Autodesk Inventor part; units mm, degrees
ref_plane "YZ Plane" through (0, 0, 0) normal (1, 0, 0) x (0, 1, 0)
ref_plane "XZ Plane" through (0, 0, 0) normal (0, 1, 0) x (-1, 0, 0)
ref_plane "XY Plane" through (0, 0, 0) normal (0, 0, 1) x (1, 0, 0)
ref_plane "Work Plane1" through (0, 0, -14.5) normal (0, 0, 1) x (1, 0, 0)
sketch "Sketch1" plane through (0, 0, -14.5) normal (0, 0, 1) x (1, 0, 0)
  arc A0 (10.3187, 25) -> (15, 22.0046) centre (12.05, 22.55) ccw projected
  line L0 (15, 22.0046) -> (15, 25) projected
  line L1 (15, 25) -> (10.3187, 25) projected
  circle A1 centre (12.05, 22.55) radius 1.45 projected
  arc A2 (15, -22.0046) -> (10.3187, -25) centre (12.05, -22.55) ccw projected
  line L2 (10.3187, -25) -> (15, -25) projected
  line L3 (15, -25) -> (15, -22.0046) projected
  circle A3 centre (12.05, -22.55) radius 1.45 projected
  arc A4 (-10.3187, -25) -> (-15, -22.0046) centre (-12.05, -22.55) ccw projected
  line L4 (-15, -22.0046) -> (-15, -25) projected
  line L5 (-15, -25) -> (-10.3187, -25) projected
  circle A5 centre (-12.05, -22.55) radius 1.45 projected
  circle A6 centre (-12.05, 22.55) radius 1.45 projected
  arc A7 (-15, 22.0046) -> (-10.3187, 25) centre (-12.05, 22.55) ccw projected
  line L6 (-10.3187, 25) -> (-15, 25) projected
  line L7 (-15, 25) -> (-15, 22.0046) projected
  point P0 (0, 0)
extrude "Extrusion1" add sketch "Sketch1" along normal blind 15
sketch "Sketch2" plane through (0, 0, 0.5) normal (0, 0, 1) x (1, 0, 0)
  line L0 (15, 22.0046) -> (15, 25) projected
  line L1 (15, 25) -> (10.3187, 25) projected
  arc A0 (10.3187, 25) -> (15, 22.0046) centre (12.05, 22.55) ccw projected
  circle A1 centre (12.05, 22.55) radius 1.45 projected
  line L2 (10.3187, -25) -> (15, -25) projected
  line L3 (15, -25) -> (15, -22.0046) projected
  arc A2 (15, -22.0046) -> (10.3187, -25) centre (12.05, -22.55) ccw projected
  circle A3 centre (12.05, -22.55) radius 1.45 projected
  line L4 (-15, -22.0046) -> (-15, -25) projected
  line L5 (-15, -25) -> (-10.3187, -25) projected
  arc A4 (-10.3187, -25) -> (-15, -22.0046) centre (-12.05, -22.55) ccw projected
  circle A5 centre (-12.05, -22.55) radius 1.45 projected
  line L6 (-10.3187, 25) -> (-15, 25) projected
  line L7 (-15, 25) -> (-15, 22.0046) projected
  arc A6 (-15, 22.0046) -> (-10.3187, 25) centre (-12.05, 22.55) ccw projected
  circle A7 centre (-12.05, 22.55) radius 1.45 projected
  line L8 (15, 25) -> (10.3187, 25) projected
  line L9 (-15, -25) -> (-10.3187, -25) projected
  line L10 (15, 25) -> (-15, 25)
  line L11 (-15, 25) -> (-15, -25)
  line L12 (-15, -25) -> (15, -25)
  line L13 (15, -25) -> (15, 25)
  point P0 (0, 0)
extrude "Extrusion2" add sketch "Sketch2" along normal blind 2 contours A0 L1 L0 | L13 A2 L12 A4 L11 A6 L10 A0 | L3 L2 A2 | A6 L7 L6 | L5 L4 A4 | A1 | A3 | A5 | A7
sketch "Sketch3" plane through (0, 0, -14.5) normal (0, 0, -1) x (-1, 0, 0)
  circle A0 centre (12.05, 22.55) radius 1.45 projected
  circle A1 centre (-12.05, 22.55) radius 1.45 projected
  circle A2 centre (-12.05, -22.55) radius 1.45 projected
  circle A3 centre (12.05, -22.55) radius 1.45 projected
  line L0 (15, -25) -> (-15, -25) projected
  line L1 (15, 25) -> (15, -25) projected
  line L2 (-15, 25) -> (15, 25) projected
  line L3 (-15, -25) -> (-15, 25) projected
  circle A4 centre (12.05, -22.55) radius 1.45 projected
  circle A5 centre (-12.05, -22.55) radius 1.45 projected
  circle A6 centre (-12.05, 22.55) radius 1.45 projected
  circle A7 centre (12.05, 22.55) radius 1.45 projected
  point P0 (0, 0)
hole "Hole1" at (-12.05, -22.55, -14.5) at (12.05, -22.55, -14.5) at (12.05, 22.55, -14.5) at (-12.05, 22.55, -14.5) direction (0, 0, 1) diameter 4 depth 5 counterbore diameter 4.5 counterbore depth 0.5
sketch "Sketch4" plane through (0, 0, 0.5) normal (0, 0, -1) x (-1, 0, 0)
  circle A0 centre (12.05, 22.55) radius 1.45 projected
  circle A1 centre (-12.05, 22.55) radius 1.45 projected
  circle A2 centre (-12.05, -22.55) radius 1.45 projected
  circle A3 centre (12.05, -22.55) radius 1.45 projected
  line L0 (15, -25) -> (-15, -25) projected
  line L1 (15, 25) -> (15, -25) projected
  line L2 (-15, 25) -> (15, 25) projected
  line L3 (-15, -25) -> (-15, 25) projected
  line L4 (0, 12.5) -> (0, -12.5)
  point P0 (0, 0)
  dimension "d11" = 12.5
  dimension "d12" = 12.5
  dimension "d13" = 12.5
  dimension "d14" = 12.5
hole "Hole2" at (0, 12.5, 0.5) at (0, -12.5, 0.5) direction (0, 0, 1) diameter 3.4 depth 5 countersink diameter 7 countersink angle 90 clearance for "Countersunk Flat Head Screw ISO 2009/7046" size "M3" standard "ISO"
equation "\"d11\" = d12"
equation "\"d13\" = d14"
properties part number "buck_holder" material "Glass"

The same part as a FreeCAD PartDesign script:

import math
import FreeCAD as App
import Part
import Sketcher
Q = App.Units.Quantity

doc = App.newDocument("Part")
body = doc.addObject("PartDesign::Body", "Body")
body.AllowCompound = True

sketch1 = body.newObject("Sketcher::SketchObject", "Sketch")
sketch1.AttachmentSupport = (doc.getObject("XY_Plane"), [""])
sketch1.MapMode = "FlatFace"
sketch1.AttachmentOffset = App.Placement(App.Vector(0, 0, -14.5), App.Rotation())
sketch1.addGeometry(Part.LineSegment(App.Vector(15, 25, 0), App.Vector(10.3, 25, 0)), False)
sketch1.addGeometry(Part.ArcOfCircle(Part.Circle(App.Vector(12.1, 22.6, 0), App.Vector(0, 0, 1), 3), math.radians(125), math.radians(350)), False)
sketch1.addGeometry(Part.LineSegment(App.Vector(15, 22, 0), App.Vector(15, 25, 0)), False)
sketch1.addGeometry(Part.Circle(App.Vector(12.1, 22.6, 0), App.Vector(0, 0, 1), 1.4), False)
sketch1.addGeometry(Part.LineSegment(App.Vector(15, -25, 0), App.Vector(15, -22, 0)), False)
sketch1.addGeometry(Part.ArcOfCircle(Part.Circle(App.Vector(12.1, -22.6, 0), App.Vector(0, 0, 1), 3), math.radians(10), math.radians(235)), False)
sketch1.addGeometry(Part.LineSegment(App.Vector(10.3, -25, 0), App.Vector(15, -25, 0)), False)
sketch1.addGeometry(Part.Circle(App.Vector(12.1, -22.6, 0), App.Vector(0, 0, 1), 1.4), False)
sketch1.addGeometry(Part.LineSegment(App.Vector(-15, -25, 0), App.Vector(-10.3, -25, 0)), False)
sketch1.addGeometry(Part.ArcOfCircle(Part.Circle(App.Vector(-12.1, -22.6, 0), App.Vector(0, 0, 1), 3), math.radians(-55), math.radians(170)), False)
sketch1.addGeometry(Part.LineSegment(App.Vector(-15, -22, 0), App.Vector(-15, -25, 0)), False)
sketch1.addGeometry(Part.Circle(App.Vector(-12.1, -22.6, 0), App.Vector(0, 0, 1), 1.4), False)
sketch1.addGeometry(Part.LineSegment(App.Vector(-15, 25, 0), App.Vector(-15, 22, 0)), False)
sketch1.addGeometry(Part.ArcOfCircle(Part.Circle(App.Vector(-12.1, 22.6, 0), App.Vector(0, 0, 1), 3), math.radians(-170), math.radians(55)), False)
sketch1.addGeometry(Part.LineSegment(App.Vector(-10.3, 25, 0), App.Vector(-15, 25, 0)), False)
sketch1.addGeometry(Part.Circle(App.Vector(-12.1, 22.6, 0), App.Vector(0, 0, 1), 1.4), False)
sketch1.addConstraint(Sketcher.Constraint("Coincident", 0, 2, 1, 1))
sketch1.addConstraint(Sketcher.Constraint("Coincident", 1, 2, 2, 1))
sketch1.addConstraint(Sketcher.Constraint("Coincident", 2, 2, 0, 1))
sketch1.addConstraint(Sketcher.Constraint("Coincident", 4, 2, 5, 1))
sketch1.addConstraint(Sketcher.Constraint("Coincident", 5, 2, 6, 1))
sketch1.addConstraint(Sketcher.Constraint("Coincident", 6, 2, 4, 1))
sketch1.addConstraint(Sketcher.Constraint("Coincident", 8, 2, 9, 1))
sketch1.addConstraint(Sketcher.Constraint("Coincident", 9, 2, 10, 1))
sketch1.addConstraint(Sketcher.Constraint("Coincident", 10, 2, 8, 1))
sketch1.addConstraint(Sketcher.Constraint("Coincident", 12, 2, 13, 1))
sketch1.addConstraint(Sketcher.Constraint("Coincident", 13, 2, 14, 1))
sketch1.addConstraint(Sketcher.Constraint("Coincident", 14, 2, 12, 1))
sketch1.addConstraint(Sketcher.Constraint("Horizontal", 0))
sketch1.addConstraint(Sketcher.Constraint("Vertical", 2))
sketch1.addConstraint(Sketcher.Constraint("Vertical", 4))
sketch1.addConstraint(Sketcher.Constraint("Horizontal", 6))
sketch1.addConstraint(Sketcher.Constraint("Horizontal", 8))
sketch1.addConstraint(Sketcher.Constraint("Vertical", 10))
sketch1.addConstraint(Sketcher.Constraint("Vertical", 12))
sketch1.addConstraint(Sketcher.Constraint("Horizontal", 14))
sketch1.addConstraint(Sketcher.Constraint("Coincident", 3, 3, 1, 3))
sketch1.addConstraint(Sketcher.Constraint("Coincident", 7, 3, 5, 3))
sketch1.addConstraint(Sketcher.Constraint("Coincident", 11, 3, 9, 3))
sketch1.addConstraint(Sketcher.Constraint("Coincident", 15, 3, 13, 3))
sketch1.addConstraint(Sketcher.Constraint("Equal", 1, 5))
sketch1.addConstraint(Sketcher.Constraint("Equal", 3, 7))
sketch1.addConstraint(Sketcher.Constraint("Equal", 5, 9))
sketch1.addConstraint(Sketcher.Constraint("Equal", 7, 11))
sketch1.addConstraint(Sketcher.Constraint("Equal", 9, 13))
sketch1.addConstraint(Sketcher.Constraint("Equal", 11, 15))
sketch1.addConstraint(Sketcher.Constraint("Symmetric", 1, 3, 9, 3, -1, 1))
sketch1.addConstraint(Sketcher.Constraint("Symmetric", 5, 3, 13, 3, -1, 1))
sketch1.addConstraint(Sketcher.Constraint("Symmetric", 2, 2, 10, 2, -1, 1))
sketch1.addConstraint(Sketcher.Constraint("Symmetric", 6, 2, 14, 2, -1, 1))
sketch1.addConstraint(Sketcher.Constraint("Symmetric", 5, 3, 9, 3, -2))
sketch1.addConstraint(Sketcher.Constraint("Symmetric", 6, 2, 10, 2, -2))
sketch1.addConstraint(Sketcher.Constraint("Radius", 1, Q("3 mm")))
sketch1.addConstraint(Sketcher.Constraint("Diameter", 3, Q("2.9 mm")))
sketch1.addConstraint(Sketcher.Constraint("DistanceY", -1, 1, 0, 2, Q("25 mm")))
sketch1.addConstraint(Sketcher.Constraint("DistanceX", -1, 1, 1, 2, Q("15 mm")))
sketch1.addConstraint(Sketcher.Constraint("DistanceY", 5, 3, 1, 3, Q("45.1 mm")))
sketch1.addConstraint(Sketcher.Constraint("DistanceX", 9, 3, 5, 3, Q("24.1 mm")))
pad1 = body.newObject("PartDesign::Pad", "Pad")
pad1.Profile = sketch1
pad1.Length = 15

sketch2 = body.newObject("Sketcher::SketchObject", "Sketch001")
sketch2.AttachmentSupport = (doc.getObject("XY_Plane"), [""])
sketch2.MapMode = "FlatFace"
sketch2.AttachmentOffset = App.Placement(App.Vector(0, 0, 0.5), App.Rotation())
sketch2.addGeometry(Part.LineSegment(App.Vector(15, 25, 0), App.Vector(-15, 25, 0)), False)
sketch2.addGeometry(Part.LineSegment(App.Vector(-15, 25, 0), App.Vector(-15, -25, 0)), False)
sketch2.addGeometry(Part.LineSegment(App.Vector(-15, -25, 0), App.Vector(15, -25, 0)), False)
sketch2.addGeometry(Part.LineSegment(App.Vector(15, -25, 0), App.Vector(15, 25, 0)), False)
sketch2.addConstraint(Sketcher.Constraint("Coincident", 0, 2, 1, 1))
sketch2.addConstraint(Sketcher.Constraint("Coincident", 1, 2, 2, 1))
sketch2.addConstraint(Sketcher.Constraint("Coincident", 2, 2, 3, 1))
sketch2.addConstraint(Sketcher.Constraint("Coincident", 3, 2, 0, 1))
sketch2.addConstraint(Sketcher.Constraint("Horizontal", 0))
sketch2.addConstraint(Sketcher.Constraint("Vertical", 1))
sketch2.addConstraint(Sketcher.Constraint("Horizontal", 2))
sketch2.addConstraint(Sketcher.Constraint("Vertical", 3))
sketch2.addConstraint(Sketcher.Constraint("Symmetric", 0, 2, 2, 2, -1, 1))
sketch2.addConstraint(Sketcher.Constraint("DistanceX", 0, 2, 0, 1, Q("30 mm")))
sketch2.addConstraint(Sketcher.Constraint("DistanceY", 1, 2, 1, 1, Q("50 mm")))
pad2 = body.newObject("PartDesign::Pad", "Pad001")
pad2.Profile = sketch2
pad2.Length = 2

sketch3 = body.newObject("Sketcher::SketchObject", "Sketch002")
sketch3.AttachmentSupport = (doc.getObject("XY_Plane"), [""])
sketch3.MapMode = "FlatFace"
sketch3.AttachmentOffset = App.Placement(App.Vector(0, 0, -14.5), App.Rotation())
sketch3.addGeometry(Part.Circle(App.Vector(-12.1, -22.6, 0), App.Vector(0, 0, 1), 2), False)
sketch3.addGeometry(Part.Circle(App.Vector(12.1, -22.6, 0), App.Vector(0, 0, 1), 2), False)
sketch3.addGeometry(Part.Circle(App.Vector(12.1, 22.6, 0), App.Vector(0, 0, 1), 2), False)
sketch3.addGeometry(Part.Circle(App.Vector(-12.1, 22.6, 0), App.Vector(0, 0, 1), 2), False)
sketch3.addConstraint(Sketcher.Constraint("Equal", 0, 1))
sketch3.addConstraint(Sketcher.Constraint("Equal", 1, 2))
sketch3.addConstraint(Sketcher.Constraint("Equal", 2, 3))
sketch3.addConstraint(Sketcher.Constraint("Symmetric", 0, 3, 2, 3, -1, 1))
sketch3.addConstraint(Sketcher.Constraint("Symmetric", 1, 3, 3, 3, -1, 1))
sketch3.addConstraint(Sketcher.Constraint("Symmetric", 0, 3, 1, 3, -2))
sketch3.addConstraint(Sketcher.Constraint("Diameter", 0, Q("4 mm")))
sketch3.addConstraint(Sketcher.Constraint("DistanceX", 0, 3, 1, 3, Q("24.1 mm")))
sketch3.addConstraint(Sketcher.Constraint("DistanceY", 1, 3, 2, 3, Q("45.1 mm")))
doc.recompute()
hole = body.newObject("PartDesign::Hole", "Hole")
hole.Profile = sketch3
hole.ThreadType = "None"
hole.Diameter = 4
hole.DepthType = "Dimension"
hole.Depth = 5
hole.DrillPoint = "Flat"
hole.HoleCutType = "Counterbore"
hole.HoleCutDiameter = 4.5
hole.HoleCutDepth = 0.5
hole.Reversed = True

sketch4 = body.newObject("Sketcher::SketchObject", "Sketch003")
sketch4.AttachmentSupport = (doc.getObject("XY_Plane"), [""])
sketch4.MapMode = "FlatFace"
sketch4.AttachmentOffset = App.Placement(App.Vector(0, 0, 0.5), App.Rotation())
sketch4.addGeometry(Part.Circle(App.Vector(0, 12.5, 0), App.Vector(0, 0, 1), 1.7), False)
sketch4.addGeometry(Part.Circle(App.Vector(0, -12.5, 0), App.Vector(0, 0, 1), 1.7), False)
sketch4.addConstraint(Sketcher.Constraint("Equal", 0, 1))
sketch4.addConstraint(Sketcher.Constraint("Symmetric", 0, 3, 1, 3, -1, 1))
sketch4.addConstraint(Sketcher.Constraint("PointOnObject", 0, 3, -2))
sketch4.addConstraint(Sketcher.Constraint("Diameter", 0, Q("3.4 mm")))
sketch4.addConstraint(Sketcher.Constraint("DistanceY", 1, 3, 0, 3, Q("25 mm")))
doc.recompute()
hole2 = body.newObject("PartDesign::Hole", "Hole001")
hole2.Profile = sketch4
hole2.ThreadType = "None"
hole2.Diameter = 3.4
hole2.DepthType = "Dimension"
hole2.Depth = 5
hole2.DrillPoint = "Flat"
hole2.HoleCutType = "Countersink"
hole2.HoleCutDiameter = 7
hole2.HoleCutCountersinkAngle = 90
hole2.Reversed = True

doc.recompute()
